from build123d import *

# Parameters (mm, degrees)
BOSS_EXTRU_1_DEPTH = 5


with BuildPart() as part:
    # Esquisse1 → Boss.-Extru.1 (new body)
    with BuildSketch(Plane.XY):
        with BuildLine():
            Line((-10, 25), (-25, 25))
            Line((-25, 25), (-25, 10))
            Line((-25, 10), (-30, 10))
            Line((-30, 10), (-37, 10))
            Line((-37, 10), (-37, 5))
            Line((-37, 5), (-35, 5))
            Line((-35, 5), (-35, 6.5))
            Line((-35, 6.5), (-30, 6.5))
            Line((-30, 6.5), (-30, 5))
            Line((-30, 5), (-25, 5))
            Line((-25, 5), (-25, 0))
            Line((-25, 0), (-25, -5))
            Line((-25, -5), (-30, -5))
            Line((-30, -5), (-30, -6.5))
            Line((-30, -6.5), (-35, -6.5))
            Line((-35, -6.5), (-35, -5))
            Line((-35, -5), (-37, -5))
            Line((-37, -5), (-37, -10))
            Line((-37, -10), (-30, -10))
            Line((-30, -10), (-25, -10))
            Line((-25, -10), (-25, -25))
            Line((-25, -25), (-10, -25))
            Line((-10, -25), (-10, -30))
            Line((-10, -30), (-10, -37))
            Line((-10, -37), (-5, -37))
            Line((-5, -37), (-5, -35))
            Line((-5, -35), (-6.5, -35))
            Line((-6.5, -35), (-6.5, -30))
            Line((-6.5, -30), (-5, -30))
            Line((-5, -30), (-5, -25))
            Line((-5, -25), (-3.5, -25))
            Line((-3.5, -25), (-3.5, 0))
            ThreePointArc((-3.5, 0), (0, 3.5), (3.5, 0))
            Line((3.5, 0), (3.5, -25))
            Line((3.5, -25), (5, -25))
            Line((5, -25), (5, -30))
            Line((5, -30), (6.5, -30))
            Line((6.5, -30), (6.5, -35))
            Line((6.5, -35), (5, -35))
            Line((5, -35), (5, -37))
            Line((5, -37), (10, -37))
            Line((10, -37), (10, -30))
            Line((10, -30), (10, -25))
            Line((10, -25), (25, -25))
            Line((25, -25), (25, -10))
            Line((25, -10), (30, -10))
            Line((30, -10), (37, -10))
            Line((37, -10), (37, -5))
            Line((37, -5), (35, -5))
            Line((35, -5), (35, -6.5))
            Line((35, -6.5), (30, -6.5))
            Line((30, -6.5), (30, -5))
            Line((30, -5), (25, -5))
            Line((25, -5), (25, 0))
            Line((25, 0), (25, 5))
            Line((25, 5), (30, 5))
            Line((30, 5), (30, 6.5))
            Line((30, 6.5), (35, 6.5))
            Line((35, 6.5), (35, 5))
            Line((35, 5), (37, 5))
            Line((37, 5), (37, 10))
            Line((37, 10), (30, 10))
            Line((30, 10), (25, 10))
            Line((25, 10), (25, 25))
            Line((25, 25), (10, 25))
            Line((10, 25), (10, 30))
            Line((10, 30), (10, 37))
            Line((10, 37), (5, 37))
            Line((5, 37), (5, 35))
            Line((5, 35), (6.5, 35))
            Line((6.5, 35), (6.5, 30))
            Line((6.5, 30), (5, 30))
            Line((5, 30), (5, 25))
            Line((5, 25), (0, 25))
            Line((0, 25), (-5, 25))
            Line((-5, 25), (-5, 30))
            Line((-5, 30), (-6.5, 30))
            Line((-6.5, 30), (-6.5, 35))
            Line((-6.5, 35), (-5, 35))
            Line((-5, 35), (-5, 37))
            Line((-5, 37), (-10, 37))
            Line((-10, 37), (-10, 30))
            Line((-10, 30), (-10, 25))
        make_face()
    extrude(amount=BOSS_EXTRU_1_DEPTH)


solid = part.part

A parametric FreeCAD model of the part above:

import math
import FreeCAD as App
import Part
import Sketcher
from FreeCAD import Vector

doc = App.newDocument("Part")
body = doc.addObject("PartDesign::Body", "Body")

# Sketch on XY plane
sketch1 = body.newObject("Sketcher::SketchObject", "Sketch")
sketch1.AttachmentSupport = (doc.getObject("XY_Plane"), [""])
sketch1.MapMode = "FlatFace"
sketch1.addGeometry([
    Part.LineSegment(Vector(-10, 25, 0), Vector(-25, 25, 0)),  # 0
    Part.LineSegment(Vector(-25, 25, 0), Vector(-25, 10, 0)),  # 1
    Part.LineSegment(Vector(-25, 10, 0), Vector(-37, 10, 0)),  # 2
    Part.LineSegment(Vector(-37, 10, 0), Vector(-37, 5, 0)),  # 3
    Part.LineSegment(Vector(-37, 5, 0), Vector(-35, 5, 0)),  # 4
    Part.LineSegment(Vector(-35, 5, 0), Vector(-35, 6.5, 0)),  # 5
    Part.LineSegment(Vector(-35, 6.5, 0), Vector(-30, 6.5, 0)),  # 6
    Part.LineSegment(Vector(-30, 6.5, 0), Vector(-30, 5, 0)),  # 7
    Part.LineSegment(Vector(-30, 5, 0), Vector(-25, 5, 0)),  # 8
    Part.LineSegment(Vector(-25, 5, 0), Vector(-25, -5, 0)),  # 9
    Part.LineSegment(Vector(-25, -5, 0), Vector(-30, -5, 0)),  # 10
    Part.LineSegment(Vector(-30, -5, 0), Vector(-30, -6.5, 0)),  # 11
    Part.LineSegment(Vector(-30, -6.5, 0), Vector(-35, -6.5, 0)),  # 12
    Part.LineSegment(Vector(-35, -6.5, 0), Vector(-35, -5, 0)),  # 13
    Part.LineSegment(Vector(-35, -5, 0), Vector(-37, -5, 0)),  # 14
    Part.LineSegment(Vector(-37, -5, 0), Vector(-37, -10, 0)),  # 15
    Part.LineSegment(Vector(-37, -10, 0), Vector(-25, -10, 0)),  # 16
    Part.LineSegment(Vector(-25, -10, 0), Vector(-25, -25, 0)),  # 17
    Part.LineSegment(Vector(-25, -25, 0), Vector(-10, -25, 0)),  # 18
    Part.LineSegment(Vector(-10, -25, 0), Vector(-10, -37, 0)),  # 19
    Part.LineSegment(Vector(-10, -37, 0), Vector(-5, -37, 0)),  # 20
    Part.LineSegment(Vector(-5, -37, 0), Vector(-5, -35, 0)),  # 21
    Part.LineSegment(Vector(-5, -35, 0), Vector(-6.5, -35, 0)),  # 22
    Part.LineSegment(Vector(-6.5, -35, 0), Vector(-6.5, -30, 0)),  # 23
    Part.LineSegment(Vector(-6.5, -30, 0), Vector(-5, -30, 0)),  # 24
    Part.LineSegment(Vector(-5, -30, 0), Vector(-5, -25, 0)),  # 25
    Part.LineSegment(Vector(-5, -25, 0), Vector(-3.5, -25, 0)),  # 26
    Part.LineSegment(Vector(-3.5, -25, 0), Vector(-3.5, 0, 0)),  # 27
    Part.ArcOfCircle(Part.Circle(Vector(0, 0, 0), Vector(0, 0, 1), 3.5), math.radians(0), math.radians(180)),  # 28
    Part.LineSegment(Vector(3.5, 0, 0), Vector(3.5, -25, 0)),  # 29
    Part.LineSegment(Vector(3.5, -25, 0), Vector(5, -25, 0)),  # 30
    Part.LineSegment(Vector(5, -25, 0), Vector(5, -30, 0)),  # 31
    Part.LineSegment(Vector(5, -30, 0), Vector(6.5, -30, 0)),  # 32
    Part.LineSegment(Vector(6.5, -30, 0), Vector(6.5, -35, 0)),  # 33
    Part.LineSegment(Vector(6.5, -35, 0), Vector(5, -35, 0)),  # 34
    Part.LineSegment(Vector(5, -35, 0), Vector(5, -37, 0)),  # 35
    Part.LineSegment(Vector(5, -37, 0), Vector(10, -37, 0)),  # 36
    Part.LineSegment(Vector(10, -37, 0), Vector(10, -25, 0)),  # 37
    Part.LineSegment(Vector(10, -25, 0), Vector(25, -25, 0)),  # 38
    Part.LineSegment(Vector(25, -25, 0), Vector(25, -10, 0)),  # 39
    Part.LineSegment(Vector(25, -10, 0), Vector(37, -10, 0)),  # 40
    Part.LineSegment(Vector(37, -10, 0), Vector(37, -5, 0)),  # 41
    Part.LineSegment(Vector(37, -5, 0), Vector(35, -5, 0)),  # 42
    Part.LineSegment(Vector(35, -5, 0), Vector(35, -6.5, 0)),  # 43
    Part.LineSegment(Vector(35, -6.5, 0), Vector(30, -6.5, 0)),  # 44
    Part.LineSegment(Vector(30, -6.5, 0), Vector(30, -5, 0)),  # 45
    Part.LineSegment(Vector(30, -5, 0), Vector(25, -5, 0)),  # 46
    Part.LineSegment(Vector(25, -5, 0), Vector(25, 5, 0)),  # 47
    Part.LineSegment(Vector(25, 5, 0), Vector(30, 5, 0)),  # 48
    Part.LineSegment(Vector(30, 5, 0), Vector(30, 6.5, 0)),  # 49
    Part.LineSegment(Vector(30, 6.5, 0), Vector(35, 6.5, 0)),  # 50
    Part.LineSegment(Vector(35, 6.5, 0), Vector(35, 5, 0)),  # 51
    Part.LineSegment(Vector(35, 5, 0), Vector(37, 5, 0)),  # 52
    Part.LineSegment(Vector(37, 5, 0), Vector(37, 10, 0)),  # 53
    Part.LineSegment(Vector(37, 10, 0), Vector(25, 10, 0)),  # 54
    Part.LineSegment(Vector(25, 10, 0), Vector(25, 25, 0)),  # 55
    Part.LineSegment(Vector(25, 25, 0), Vector(10, 25, 0)),  # 56
    Part.LineSegment(Vector(10, 25, 0), Vector(10, 37, 0)),  # 57
    Part.LineSegment(Vector(10, 37, 0), Vector(5, 37, 0)),  # 58
    Part.LineSegment(Vector(5, 37, 0), Vector(5, 35, 0)),  # 59
    Part.LineSegment(Vector(5, 35, 0), Vector(6.5, 35, 0)),  # 60
    Part.LineSegment(Vector(6.5, 35, 0), Vector(6.5, 30, 0)),  # 61
    Part.LineSegment(Vector(6.5, 30, 0), Vector(5, 30, 0)),  # 62
    Part.LineSegment(Vector(5, 30, 0), Vector(5, 25, 0)),  # 63
    Part.LineSegment(Vector(5, 25, 0), Vector(-5, 25, 0)),  # 64
    Part.LineSegment(Vector(-5, 25, 0), Vector(-5, 30, 0)),  # 65
    Part.LineSegment(Vector(-5, 30, 0), Vector(-6.5, 30, 0)),  # 66
    Part.LineSegment(Vector(-6.5, 30, 0), Vector(-6.5, 35, 0)),  # 67
    Part.LineSegment(Vector(-6.5, 35, 0), Vector(-5, 35, 0)),  # 68
    Part.LineSegment(Vector(-5, 35, 0), Vector(-5, 37, 0)),  # 69
    Part.LineSegment(Vector(-5, 37, 0), Vector(-10, 37, 0)),  # 70
    Part.LineSegment(Vector(-10, 37, 0), Vector(-10, 25, 0)),  # 71
], False)
sketch1.addConstraint([
    Sketcher.Constraint("Coincident", 0, 2, 1, 1),
    Sketcher.Constraint("Coincident", 1, 2, 2, 1),
    Sketcher.Constraint("Coincident", 2, 2, 3, 1),
    Sketcher.Constraint("Coincident", 3, 2, 4, 1),
    Sketcher.Constraint("Coincident", 4, 2, 5, 1),
    Sketcher.Constraint("Coincident", 5, 2, 6, 1),
    Sketcher.Constraint("Coincident", 6, 2, 7, 1),
    Sketcher.Constraint("Coincident", 7, 2, 8, 1),
    Sketcher.Constraint("Coincident", 8, 2, 9, 1),
    Sketcher.Constraint("Coincident", 9, 2, 10, 1),
    Sketcher.Constraint("Coincident", 10, 2, 11, 1),
    Sketcher.Constraint("Coincident", 11, 2, 12, 1),
    Sketcher.Constraint("Coincident", 12, 2, 13, 1),
    Sketcher.Constraint("Coincident", 13, 2, 14, 1),
    Sketcher.Constraint("Coincident", 14, 2, 15, 1),
    Sketcher.Constraint("Coincident", 15, 2, 16, 1),
    Sketcher.Constraint("Coincident", 16, 2, 17, 1),
    Sketcher.Constraint("Coincident", 17, 2, 18, 1),
    Sketcher.Constraint("Coincident", 18, 2, 19, 1),
    Sketcher.Constraint("Coincident", 19, 2, 20, 1),
    Sketcher.Constraint("Coincident", 20, 2, 21, 1),
    Sketcher.Constraint("Coincident", 21, 2, 22, 1),
    Sketcher.Constraint("Coincident", 22, 2, 23, 1),
    Sketcher.Constraint("Coincident", 23, 2, 24, 1),
    Sketcher.Constraint("Coincident", 24, 2, 25, 1),
    Sketcher.Constraint("Coincident", 25, 2, 26, 1),
    Sketcher.Constraint("Coincident", 26, 2, 27, 1),
    Sketcher.Constraint("Tangent", 27, 2, 28, 2),
    Sketcher.Constraint("Tangent", 28, 1, 29, 1),
    Sketcher.Constraint("Coincident", 29, 2, 30, 1),
    Sketcher.Constraint("Coincident", 30, 2, 31, 1),
    Sketcher.Constraint("Coincident", 31, 2, 32, 1),
    Sketcher.Constraint("Coincident", 32, 2, 33, 1),
    Sketcher.Constraint("Coincident", 33, 2, 34, 1),
    Sketcher.Constraint("Coincident", 34, 2, 35, 1),
    Sketcher.Constraint("Coincident", 35, 2, 36, 1),
    Sketcher.Constraint("Coincident", 36, 2, 37, 1),
    Sketcher.Constraint("Coincident", 37, 2, 38, 1),
    Sketcher.Constraint("Coincident", 38, 2, 39, 1),
    Sketcher.Constraint("Coincident", 39, 2, 40, 1),
    Sketcher.Constraint("Coincident", 40, 2, 41, 1),
    Sketcher.Constraint("Coincident", 41, 2, 42, 1),
    Sketcher.Constraint("Coincident", 42, 2, 43, 1),
    Sketcher.Constraint("Coincident", 43, 2, 44, 1),
    Sketcher.Constraint("Coincident", 44, 2, 45, 1),
    Sketcher.Constraint("Coincident", 45, 2, 46, 1),
    Sketcher.Constraint("Coincident", 46, 2, 47, 1),
    Sketcher.Constraint("Coincident", 47, 2, 48, 1),
    Sketcher.Constraint("Coincident", 48, 2, 49, 1),
    Sketcher.Constraint("Coincident", 49, 2, 50, 1),
    Sketcher.Constraint("Coincident", 50, 2, 51, 1),
    Sketcher.Constraint("Coincident", 51, 2, 52, 1),
    Sketcher.Constraint("Coincident", 52, 2, 53, 1),
    Sketcher.Constraint("Coincident", 53, 2, 54, 1),
    Sketcher.Constraint("Coincident", 54, 2, 55, 1),
    Sketcher.Constraint("Coincident", 55, 2, 56, 1),
    Sketcher.Constraint("Coincident", 56, 2, 57, 1),
    Sketcher.Constraint("Coincident", 57, 2, 58, 1),
    Sketcher.Constraint("Coincident", 58, 2, 59, 1),
    Sketcher.Constraint("Coincident", 59, 2, 60, 1),
    Sketcher.Constraint("Coincident", 60, 2, 61, 1),
    Sketcher.Constraint("Coincident", 61, 2, 62, 1),
    Sketcher.Constraint("Coincident", 62, 2, 63, 1),
    Sketcher.Constraint("Coincident", 63, 2, 64, 1),
    Sketcher.Constraint("Coincident", 64, 2, 65, 1),
    Sketcher.Constraint("Coincident", 65, 2, 66, 1),
    Sketcher.Constraint("Coincident", 66, 2, 67, 1),
    Sketcher.Constraint("Coincident", 67, 2, 68, 1),
    Sketcher.Constraint("Coincident", 68, 2, 69, 1),
    Sketcher.Constraint("Coincident", 69, 2, 70, 1),
    Sketcher.Constraint("Coincident", 70, 2, 71, 1),
    Sketcher.Constraint("Coincident", 71, 2, 0, 1),
    Sketcher.Constraint("Horizontal", 0),
    Sketcher.Constraint("Vertical", 1),
    Sketcher.Constraint("Horizontal", 2),
    Sketcher.Constraint("Vertical", 3),
    Sketcher.Constraint("Horizontal", 4),
    Sketcher.Constraint("Vertical", 5),
    Sketcher.Constraint("Horizontal", 6),
    Sketcher.Constraint("Vertical", 7),
    Sketcher.Constraint("Horizontal", 8),
    Sketcher.Constraint("Vertical", 9),
    Sketcher.Constraint("Horizontal", 10),
    Sketcher.Constraint("Vertical", 11),
    Sketcher.Constraint("Horizontal", 12),
    Sketcher.Constraint("Vertical", 13),
    Sketcher.Constraint("Horizontal", 14),
    Sketcher.Constraint("Vertical", 15),
    Sketcher.Constraint("Horizontal", 16),
    Sketcher.Constraint("Vertical", 17),
    Sketcher.Constraint("Horizontal", 18),
    Sketcher.Constraint("Vertical", 19),
    Sketcher.Constraint("Horizontal", 20),
    Sketcher.Constraint("Vertical", 21),
    Sketcher.Constraint("Horizontal", 22),
    Sketcher.Constraint("Vertical", 23),
    Sketcher.Constraint("Horizontal", 24),
    Sketcher.Constraint("Vertical", 25),
    Sketcher.Constraint("Horizontal", 26),
    Sketcher.Constraint("Vertical", 27),
    Sketcher.Constraint("Vertical", 29),
    Sketcher.Constraint("Horizontal", 30),
    Sketcher.Constraint("Vertical", 31),
    Sketcher.Constraint("Horizontal", 32),
    Sketcher.Constraint("Vertical", 33),
    Sketcher.Constraint("Horizontal", 34),
    Sketcher.Constraint("Vertical", 35),
    Sketcher.Constraint("Horizontal", 36),
    Sketcher.Constraint("Vertical", 37),
    Sketcher.Constraint("Horizontal", 38),
    Sketcher.Constraint("Vertical", 39),
    Sketcher.Constraint("Horizontal", 40),
    Sketcher.Constraint("Vertical", 41),
    Sketcher.Constraint("Horizontal", 42),
    Sketcher.Constraint("Vertical", 43),
    Sketcher.Constraint("Horizontal", 44),
    Sketcher.Constraint("Vertical", 45),
    Sketcher.Constraint("Horizontal", 46),
    Sketcher.Constraint("Vertical", 47),
    Sketcher.Constraint("Horizontal", 48),
    Sketcher.Constraint("Vertical", 49),
    Sketcher.Constraint("Horizontal", 50),
    Sketcher.Constraint("Vertical", 51),
    Sketcher.Constraint("Horizontal", 52),
    Sketcher.Constraint("Vertical", 53),
    Sketcher.Constraint("Horizontal", 54),
    Sketcher.Constraint("Vertical", 55),
    Sketcher.Constraint("Horizontal", 56),
    Sketcher.Constraint("Vertical", 57),
    Sketcher.Constraint("Horizontal", 58),
    Sketcher.Constraint("Vertical", 59),
    Sketcher.Constraint("Horizontal", 60),
    Sketcher.Constraint("Vertical", 61),
    Sketcher.Constraint("Horizontal", 62),
    Sketcher.Constraint("Vertical", 63),
    Sketcher.Constraint("Horizontal", 64),
    Sketcher.Constraint("Vertical", 65),
    Sketcher.Constraint("Horizontal", 66),
    Sketcher.Constraint("Vertical", 67),
    Sketcher.Constraint("Horizontal", 68),
    Sketcher.Constraint("Vertical", 69),
    Sketcher.Constraint("Horizontal", 70),
    Sketcher.Constraint("Vertical", 71),
    Sketcher.Constraint("Coincident", 28, 3, -1, 1),
    Sketcher.Constraint("Symmetric", 0, 2, 38, 2, -1, 1),
    Sketcher.Constraint("Symmetric", 2, 2, 40, 2, -1, 1),
    Sketcher.Constraint("Symmetric", 4, 2, 42, 2, -1, 1),
    Sketcher.Constraint("Symmetric", 6, 2, 44, 2, -1, 1),
    Sketcher.Constraint("Symmetric", 8, 2, 46, 2, -1, 1),
    Sketcher.Constraint("Symmetric", 10, 2, 48, 2, -1, 1),
    Sketcher.Constraint("Symmetric", 12, 2, 50, 2, -1, 1),
    Sketcher.Constraint("Symmetric", 14, 2, 52, 2, -1, 1),
    Sketcher.Constraint("Symmetric", 16, 2, 54, 2, -1, 1),
    Sketcher.Constraint("Symmetric", 18, 2, 56, 2, -1, 1),
    Sketcher.Constraint("Symmetric", 20, 2, 58, 2, -1, 1),
    Sketcher.Constraint("Symmetric", 22, 2, 60, 2, -1, 1),
    Sketcher.Constraint("Symmetric", 24, 2, 62, 2, -1, 1),
    Sketcher.Constraint("Symmetric", 30, 2, 64, 2, -1, 1),
    Sketcher.Constraint("Symmetric", 32, 2, 66, 2, -1, 1),
    Sketcher.Constraint("Symmetric", 34, 2, 68, 2, -1, 1),
    Sketcher.Constraint("Symmetric", 36, 2, 70, 2, -1, 1),
    Sketcher.Constraint("Symmetric", 25, 2, 30, 2, -2),
    Sketcher.Constraint("Symmetric", 23, 2, 32, 2, -2),
    Sketcher.Constraint("Symmetric", 21, 2, 34, 2, -2),
    Sketcher.Constraint("Symmetric", 19, 2, 36, 2, -2),
    Sketcher.Constraint("Symmetric", 17, 2, 38, 2, -2),
    Sketcher.Constraint("Symmetric", 15, 2, 40, 2, -2),
    Sketcher.Constraint("Symmetric", 13, 2, 42, 2, -2),
    Sketcher.Constraint("Symmetric", 11, 2, 44, 2, -2),
    Sketcher.Constraint("Horizontal", 4, 2, 7, 2),
    Sketcher.Constraint("Horizontal", 10, 2, 13, 2),
    Sketcher.Constraint("Horizontal", 18, 2, 25, 2),
    Sketcher.Constraint("Vertical", 1, 2, 8, 2),
    Sketcher.Constraint("Vertical", 21, 2, 24, 2),
    Sketcher.Constraint("Equal", 6, 8),
    Sketcher.Constraint("Equal", 12, 20),
    Sketcher.Constraint("Equal", 24, 26),
    Sketcher.Constraint("Equal", 56, 1),
    Sketcher.Constraint("Equal", 70, 3),
    Sketcher.Constraint("Equal", 68, 5),
    Sketcher.Constraint("Equal", 64, 9),
    Sketcher.Constraint("Equal", 54, 19),
    Sketcher.Constraint("Equal", 52, 21),
    Sketcher.Constraint("Equal", 15, 23),
    Sketcher.Constraint("Radius", 28, 3.5),
    Sketcher.Constraint("DistanceX", 0, 2, 0, 1, 15.0),
    Sketcher.Constraint("DistanceX", 2, 2, 2, 1, 12.0),
    Sketcher.Constraint("DistanceX", 4, 1, 4, 2, 2.0),
    Sketcher.Constraint("DistanceX", 64, 2, 64, 1, 10.0),
])
pad1 = body.newObject("PartDesign::Pad", "Pad")
pad1.Profile = sketch1
pad1.Length = 5

doc.recompute()
